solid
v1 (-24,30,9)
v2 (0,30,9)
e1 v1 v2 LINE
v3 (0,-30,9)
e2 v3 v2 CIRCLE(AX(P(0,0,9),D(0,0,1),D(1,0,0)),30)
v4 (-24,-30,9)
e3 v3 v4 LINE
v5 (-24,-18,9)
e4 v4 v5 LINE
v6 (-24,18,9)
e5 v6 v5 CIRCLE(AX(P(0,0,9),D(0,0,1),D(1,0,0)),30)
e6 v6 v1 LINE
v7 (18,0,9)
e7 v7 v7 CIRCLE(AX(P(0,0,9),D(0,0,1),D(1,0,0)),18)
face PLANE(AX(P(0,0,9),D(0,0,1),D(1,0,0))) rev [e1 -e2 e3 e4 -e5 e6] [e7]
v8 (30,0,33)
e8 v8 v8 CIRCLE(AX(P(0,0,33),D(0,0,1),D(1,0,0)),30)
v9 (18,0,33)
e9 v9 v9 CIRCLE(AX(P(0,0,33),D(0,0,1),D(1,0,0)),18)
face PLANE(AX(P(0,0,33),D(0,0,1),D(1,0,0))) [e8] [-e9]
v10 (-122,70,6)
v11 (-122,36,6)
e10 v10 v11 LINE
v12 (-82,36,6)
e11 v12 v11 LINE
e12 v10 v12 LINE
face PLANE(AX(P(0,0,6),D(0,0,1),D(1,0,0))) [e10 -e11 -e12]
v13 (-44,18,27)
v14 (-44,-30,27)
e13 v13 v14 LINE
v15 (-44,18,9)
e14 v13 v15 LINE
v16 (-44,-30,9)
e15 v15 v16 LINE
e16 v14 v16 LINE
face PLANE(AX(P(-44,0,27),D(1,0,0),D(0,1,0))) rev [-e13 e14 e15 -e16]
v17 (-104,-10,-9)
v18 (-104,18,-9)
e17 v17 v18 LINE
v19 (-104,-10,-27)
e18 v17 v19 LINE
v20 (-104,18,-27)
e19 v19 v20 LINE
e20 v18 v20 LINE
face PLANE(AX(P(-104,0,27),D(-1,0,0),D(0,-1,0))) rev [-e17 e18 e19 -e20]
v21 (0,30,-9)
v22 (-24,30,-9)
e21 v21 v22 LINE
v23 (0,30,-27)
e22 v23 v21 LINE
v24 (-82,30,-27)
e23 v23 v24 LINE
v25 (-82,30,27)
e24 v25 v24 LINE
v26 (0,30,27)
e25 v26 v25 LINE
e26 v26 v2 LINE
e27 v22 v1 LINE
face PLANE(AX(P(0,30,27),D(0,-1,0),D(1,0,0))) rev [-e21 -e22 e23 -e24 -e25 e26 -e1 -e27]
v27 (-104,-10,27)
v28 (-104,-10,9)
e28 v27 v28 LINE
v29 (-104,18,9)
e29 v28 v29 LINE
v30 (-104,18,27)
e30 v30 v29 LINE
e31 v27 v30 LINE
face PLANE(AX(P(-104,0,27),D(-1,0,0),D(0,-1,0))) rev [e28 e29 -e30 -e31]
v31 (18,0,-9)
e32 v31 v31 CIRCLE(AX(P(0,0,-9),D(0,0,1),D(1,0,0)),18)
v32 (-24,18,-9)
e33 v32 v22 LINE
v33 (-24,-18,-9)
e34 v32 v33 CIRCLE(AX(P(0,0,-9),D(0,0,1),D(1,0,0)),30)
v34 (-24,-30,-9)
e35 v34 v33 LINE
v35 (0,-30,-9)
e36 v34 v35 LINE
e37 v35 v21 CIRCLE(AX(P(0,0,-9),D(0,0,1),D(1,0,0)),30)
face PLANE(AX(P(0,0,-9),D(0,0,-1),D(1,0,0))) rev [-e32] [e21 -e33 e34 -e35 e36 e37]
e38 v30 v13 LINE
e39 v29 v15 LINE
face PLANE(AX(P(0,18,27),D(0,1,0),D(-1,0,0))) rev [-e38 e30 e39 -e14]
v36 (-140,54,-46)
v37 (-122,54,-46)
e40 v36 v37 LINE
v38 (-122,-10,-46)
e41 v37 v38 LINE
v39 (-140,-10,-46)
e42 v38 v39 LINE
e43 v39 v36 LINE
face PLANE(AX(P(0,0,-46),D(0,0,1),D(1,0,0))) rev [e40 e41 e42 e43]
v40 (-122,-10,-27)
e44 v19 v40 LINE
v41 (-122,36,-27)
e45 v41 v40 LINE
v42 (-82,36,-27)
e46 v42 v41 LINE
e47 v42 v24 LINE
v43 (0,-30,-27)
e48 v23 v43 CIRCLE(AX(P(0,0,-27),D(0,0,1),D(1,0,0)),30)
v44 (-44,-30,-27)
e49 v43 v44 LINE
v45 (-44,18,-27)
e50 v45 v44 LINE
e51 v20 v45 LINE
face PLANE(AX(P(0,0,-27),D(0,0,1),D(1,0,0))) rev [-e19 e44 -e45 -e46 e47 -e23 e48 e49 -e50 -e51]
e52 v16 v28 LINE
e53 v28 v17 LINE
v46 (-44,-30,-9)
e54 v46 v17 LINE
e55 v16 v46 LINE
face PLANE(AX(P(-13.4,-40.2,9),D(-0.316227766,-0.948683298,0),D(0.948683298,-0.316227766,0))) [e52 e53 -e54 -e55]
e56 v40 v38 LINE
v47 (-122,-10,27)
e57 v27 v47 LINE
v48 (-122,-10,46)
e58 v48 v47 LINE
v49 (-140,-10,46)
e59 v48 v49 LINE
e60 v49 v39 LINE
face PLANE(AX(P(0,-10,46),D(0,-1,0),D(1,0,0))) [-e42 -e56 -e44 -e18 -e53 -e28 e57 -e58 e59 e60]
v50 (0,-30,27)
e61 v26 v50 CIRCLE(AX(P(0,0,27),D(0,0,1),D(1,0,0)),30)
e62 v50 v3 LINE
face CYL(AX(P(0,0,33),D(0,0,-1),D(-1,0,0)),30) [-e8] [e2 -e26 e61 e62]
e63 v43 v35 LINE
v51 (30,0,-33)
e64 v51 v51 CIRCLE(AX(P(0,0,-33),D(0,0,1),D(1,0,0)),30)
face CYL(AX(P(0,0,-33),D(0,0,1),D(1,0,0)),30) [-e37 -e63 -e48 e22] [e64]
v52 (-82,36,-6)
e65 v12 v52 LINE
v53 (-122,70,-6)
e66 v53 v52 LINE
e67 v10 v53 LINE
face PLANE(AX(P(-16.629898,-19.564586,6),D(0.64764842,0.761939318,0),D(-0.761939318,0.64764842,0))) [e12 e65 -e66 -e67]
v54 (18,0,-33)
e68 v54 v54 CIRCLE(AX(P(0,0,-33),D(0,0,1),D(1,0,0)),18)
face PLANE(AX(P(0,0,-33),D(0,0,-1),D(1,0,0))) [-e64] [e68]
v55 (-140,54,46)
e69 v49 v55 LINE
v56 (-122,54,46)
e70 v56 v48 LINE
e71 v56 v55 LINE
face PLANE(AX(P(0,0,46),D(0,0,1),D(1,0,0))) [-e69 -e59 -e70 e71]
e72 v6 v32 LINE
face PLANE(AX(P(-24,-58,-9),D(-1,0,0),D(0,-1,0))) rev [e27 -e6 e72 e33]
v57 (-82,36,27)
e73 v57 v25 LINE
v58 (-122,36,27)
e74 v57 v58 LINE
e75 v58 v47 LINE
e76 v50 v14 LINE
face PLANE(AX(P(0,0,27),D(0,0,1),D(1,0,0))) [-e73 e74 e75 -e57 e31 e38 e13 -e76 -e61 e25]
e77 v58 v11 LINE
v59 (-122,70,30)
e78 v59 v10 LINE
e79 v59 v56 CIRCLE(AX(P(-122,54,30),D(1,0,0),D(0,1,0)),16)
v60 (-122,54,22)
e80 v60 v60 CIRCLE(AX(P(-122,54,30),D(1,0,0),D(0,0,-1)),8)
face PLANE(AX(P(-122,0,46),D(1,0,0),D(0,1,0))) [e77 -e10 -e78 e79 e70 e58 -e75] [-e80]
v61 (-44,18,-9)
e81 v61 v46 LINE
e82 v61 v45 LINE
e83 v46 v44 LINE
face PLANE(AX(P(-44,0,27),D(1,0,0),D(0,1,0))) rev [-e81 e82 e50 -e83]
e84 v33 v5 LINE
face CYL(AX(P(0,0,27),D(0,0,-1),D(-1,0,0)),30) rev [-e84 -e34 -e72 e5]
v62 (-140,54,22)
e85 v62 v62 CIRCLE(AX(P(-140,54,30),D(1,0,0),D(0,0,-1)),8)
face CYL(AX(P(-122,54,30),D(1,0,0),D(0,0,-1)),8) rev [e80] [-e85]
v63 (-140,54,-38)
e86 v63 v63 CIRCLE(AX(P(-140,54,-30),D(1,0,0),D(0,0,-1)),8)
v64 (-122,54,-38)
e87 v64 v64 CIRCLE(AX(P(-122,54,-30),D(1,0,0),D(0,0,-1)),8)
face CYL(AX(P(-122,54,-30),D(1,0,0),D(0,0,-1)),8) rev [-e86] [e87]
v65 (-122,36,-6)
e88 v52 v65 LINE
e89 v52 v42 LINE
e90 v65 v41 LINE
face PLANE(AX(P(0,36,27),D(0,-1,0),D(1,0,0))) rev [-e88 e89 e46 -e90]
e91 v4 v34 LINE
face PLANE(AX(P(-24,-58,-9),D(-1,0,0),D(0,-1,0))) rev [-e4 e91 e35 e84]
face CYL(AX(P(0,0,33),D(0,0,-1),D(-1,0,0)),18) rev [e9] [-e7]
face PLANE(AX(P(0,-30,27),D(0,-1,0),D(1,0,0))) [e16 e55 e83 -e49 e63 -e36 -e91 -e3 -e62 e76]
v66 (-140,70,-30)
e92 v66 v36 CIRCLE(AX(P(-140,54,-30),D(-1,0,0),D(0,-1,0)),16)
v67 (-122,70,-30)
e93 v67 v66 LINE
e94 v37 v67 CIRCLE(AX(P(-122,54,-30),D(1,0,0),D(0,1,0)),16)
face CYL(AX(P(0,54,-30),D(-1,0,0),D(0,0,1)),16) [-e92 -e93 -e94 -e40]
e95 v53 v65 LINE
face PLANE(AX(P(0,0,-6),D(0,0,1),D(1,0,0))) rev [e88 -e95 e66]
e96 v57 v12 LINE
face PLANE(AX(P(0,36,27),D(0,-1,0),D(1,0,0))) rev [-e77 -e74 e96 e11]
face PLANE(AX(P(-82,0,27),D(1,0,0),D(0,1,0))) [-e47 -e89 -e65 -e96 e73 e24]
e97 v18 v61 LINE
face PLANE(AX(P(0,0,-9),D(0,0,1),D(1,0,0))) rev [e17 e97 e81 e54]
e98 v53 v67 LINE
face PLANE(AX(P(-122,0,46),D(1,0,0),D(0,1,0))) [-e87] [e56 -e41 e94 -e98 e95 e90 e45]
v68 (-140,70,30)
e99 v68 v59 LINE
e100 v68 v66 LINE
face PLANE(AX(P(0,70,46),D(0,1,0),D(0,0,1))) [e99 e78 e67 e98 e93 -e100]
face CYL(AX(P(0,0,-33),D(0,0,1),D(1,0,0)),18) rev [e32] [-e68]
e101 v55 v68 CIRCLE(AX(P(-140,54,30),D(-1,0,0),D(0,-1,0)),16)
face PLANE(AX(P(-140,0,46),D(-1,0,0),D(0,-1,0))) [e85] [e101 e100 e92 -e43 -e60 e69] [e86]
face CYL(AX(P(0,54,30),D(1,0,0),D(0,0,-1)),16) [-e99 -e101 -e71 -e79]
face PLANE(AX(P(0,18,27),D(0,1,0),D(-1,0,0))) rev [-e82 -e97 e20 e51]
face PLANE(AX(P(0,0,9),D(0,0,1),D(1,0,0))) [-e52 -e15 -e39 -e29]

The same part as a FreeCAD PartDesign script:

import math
import FreeCAD as App
import Part
import Sketcher
Q = App.Units.Quantity


def edges_at(feature, points):
    """Names of the edges that pass closest to the given points."""
    edges = feature.Shape.Edges
    near = lambda p: min(range(len(edges)), key=lambda i: edges[i].distToShape(Part.Vertex(*p))[0])
    return sorted({f"Edge{near(p) + 1}" for p in points})

doc = App.newDocument("Part")
body = doc.addObject("PartDesign::Body", "Body")

# Sketch on XY plane
sketch1 = body.newObject("Sketcher::SketchObject", "Sketch")
sketch1.AttachmentSupport = (doc.getObject("XY_Plane"), [""])
sketch1.MapMode = "FlatFace"
sketch1.addGeometry([
    Part.LineSegment(App.Vector(-140, 70, 0), App.Vector(-140, -10, 0)),
    Part.LineSegment(App.Vector(-140, -10, 0), App.Vector(-122, -10, 0)),
    Part.LineSegment(App.Vector(-122, -10, 0), App.Vector(-122, 70, 0)),
    Part.LineSegment(App.Vector(-122, 70, 0), App.Vector(-140, 70, 0)),
], False)
sketch1.addConstraint([
    Sketcher.Constraint("Coincident", 0, 2, 1, 1),
    Sketcher.Constraint("Coincident", 1, 2, 2, 1),
    Sketcher.Constraint("Coincident", 2, 2, 3, 1),
    Sketcher.Constraint("Coincident", 3, 2, 0, 1),
    Sketcher.Constraint("Vertical", 0),
    Sketcher.Constraint("Horizontal", 1),
    Sketcher.Constraint("Vertical", 2),
    Sketcher.Constraint("Horizontal", 3),
    Sketcher.Constraint("DistanceX", 1, 1, 1, 2, Q("18 mm")),
    Sketcher.Constraint("DistanceY", 0, 2, 0, 1, Q("80 mm")),
    Sketcher.Constraint("DistanceX", 0, 2, -1, 1, Q("140 mm")),
    Sketcher.Constraint("DistanceY", 0, 2, -1, 1, Q("10 mm")),
])
pad1 = body.newObject("PartDesign::Pad", "Pad")
pad1.Profile = sketch1
pad1.Length = 92
pad1.Midplane = True

# Sketch on XY plane
sketch2 = body.newObject("Sketcher::SketchObject", "Sketch001")
sketch2.AttachmentSupport = (doc.getObject("XY_Plane"), [""])
sketch2.MapMode = "FlatFace"
sketch2.addGeometry([
    Part.ArcOfCircle(Part.Circle(App.Vector(0, 0, 0), App.Vector(0, 0, 1), 30), math.radians(90), math.radians(270)),  # 0
    Part.LineSegment(App.Vector(0, 30, 0), App.Vector(-82, 30, 0)),  # 1
    Part.LineSegment(App.Vector(-82, 30, 0), App.Vector(-82, 36, 0)),  # 2
    Part.LineSegment(App.Vector(-82, 36, 0), App.Vector(-122, 36, 0)),  # 3
    Part.LineSegment(App.Vector(-122, 36, 0), App.Vector(-122, -10, 0)),  # 4
    Part.LineSegment(App.Vector(-122, -10, 0), App.Vector(-104, -10, 0)),  # 5
    Part.LineSegment(App.Vector(-104, -10, 0), App.Vector(-104, 18, 0)),  # 6
    Part.LineSegment(App.Vector(-104, 18, 0), App.Vector(-44, 18, 0)),  # 7
    Part.LineSegment(App.Vector(-44, 18, 0), App.Vector(-44, -30, 0)),  # 8
    Part.LineSegment(App.Vector(-44, -30, 0), App.Vector(0, -30, 0)),  # 9
], False)
sketch2.addConstraint([
    Sketcher.Constraint("Tangent", 0, 1, 1, 1),
    Sketcher.Constraint("Coincident", 1, 2, 2, 1),
    Sketcher.Constraint("Coincident", 2, 2, 3, 1),
    Sketcher.Constraint("Coincident", 3, 2, 4, 1),
    Sketcher.Constraint("Coincident", 4, 2, 5, 1),
    Sketcher.Constraint("Coincident", 5, 2, 6, 1),
    Sketcher.Constraint("Coincident", 6, 2, 7, 1),
    Sketcher.Constraint("Coincident", 7, 2, 8, 1),
    Sketcher.Constraint("Coincident", 8, 2, 9, 1),
    Sketcher.Constraint("Tangent", 9, 2, 0, 2),
    Sketcher.Constraint("Horizontal", 1),
    Sketcher.Constraint("Vertical", 2),
    Sketcher.Constraint("Horizontal", 3),
    Sketcher.Constraint("Vertical", 4),
    Sketcher.Constraint("Horizontal", 5),
    Sketcher.Constraint("Vertical", 6),
    Sketcher.Constraint("Horizontal", 7),
    Sketcher.Constraint("Vertical", 8),
    Sketcher.Constraint("Horizontal", 9),
    Sketcher.Constraint("Coincident", 0, 3, -1, 1),
    Sketcher.Constraint("Radius", 0, Q("30 mm")),
    Sketcher.Constraint("DistanceX", 1, 2, 1, 1, Q("82 mm")),
    Sketcher.Constraint("DistanceX", 3, 2, 3, 1, Q("40 mm")),
    Sketcher.Constraint("DistanceX", 5, 1, 5, 2, Q("18 mm")),
    Sketcher.Constraint("DistanceX", 7, 1, 7, 2, Q("60 mm")),
    Sketcher.Constraint("DistanceY", 2, 1, 2, 2, Q("6 mm")),
    Sketcher.Constraint("DistanceY", 4, 2, 4, 1, Q("46 mm")),
    Sketcher.Constraint("DistanceY", 6, 1, 6, 2, Q("28 mm")),
])
pad2 = body.newObject("PartDesign::Pad", "Pad001")
pad2.Profile = sketch2
pad2.Length = 54
pad2.Midplane = True

# Sketch on XY plane
sketch3 = body.newObject("Sketcher::SketchObject", "Sketch002")
sketch3.AttachmentSupport = (doc.getObject("XY_Plane"), [""])
sketch3.MapMode = "FlatFace"
sketch3.AttachmentOffset = App.Placement(App.Vector(0, 0, 33), App.Rotation())
sketch3.addGeometry([
    Part.Circle(App.Vector(0, 0, 0), App.Vector(0, 0, 1), 30),
    Part.Circle(App.Vector(0, 0, 0), App.Vector(0, 0, 1), 18),
], False)
sketch3.addConstraint([
    Sketcher.Constraint("Coincident", 0, 3, -1, 1),
    Sketcher.Constraint("Coincident", 1, 3, -1, 1),
    Sketcher.Constraint("Diameter", 0, Q("60 mm")),
    Sketcher.Constraint("Diameter", 1, Q("36 mm")),
])
pad3 = body.newObject("PartDesign::Pad", "Pad002")
pad3.Profile = sketch3
pad3.Length = 24
pad3.Reversed = True
doc.recompute()

mirrored = body.newObject("PartDesign::Mirrored", "Mirrored")
mirrored.Originals = [pad3]
mirrored.MirrorPlane = (doc.getObject("XY_Plane"), [""])
body.Tip = mirrored
doc.recompute()

fillet = body.newObject("PartDesign::Fillet", "Fillet")
fillet.Base = (mirrored, edges_at(mirrored, [(-131, 70, 46), (-131, 70, -46)]))
fillet.Radius = 16

# Sketch on XY plane
sketch4 = body.newObject("Sketcher::SketchObject", "Sketch003")
sketch4.AttachmentSupport = (doc.getObject("XY_Plane"), [""])
sketch4.MapMode = "FlatFace"
sketch4.addGeometry([
    Part.LineSegment(App.Vector(-122, 36, 0), App.Vector(-82, 36, 0)),
    Part.LineSegment(App.Vector(-82, 36, 0), App.Vector(-122, 70, 0)),
    Part.LineSegment(App.Vector(-122, 70, 0), App.Vector(-122, 36, 0)),
], False)
sketch4.addConstraint([
    Sketcher.Constraint("Coincident", 0, 2, 1, 1),
    Sketcher.Constraint("Coincident", 1, 2, 2, 1),
    Sketcher.Constraint("Coincident", 2, 2, 0, 1),
    Sketcher.Constraint("Horizontal", 0),
    Sketcher.Constraint("Vertical", 2),
    Sketcher.Constraint("DistanceX", 0, 1, 0, 2, Q("40 mm")),
    Sketcher.Constraint("DistanceY", 2, 2, 2, 1, Q("34 mm")),
    Sketcher.Constraint("DistanceX", 0, 2, -1, 1, Q("82 mm")),
    Sketcher.Constraint("DistanceY", -1, 1, 0, 2, Q("36 mm")),
])
pad4 = body.newObject("PartDesign::Pad", "Pad003")
pad4.Profile = sketch4
pad4.Length = 12
pad4.Midplane = True

# Sketch on XY plane
sketch5 = body.newObject("Sketcher::SketchObject", "Sketch004")
sketch5.AttachmentSupport = (doc.getObject("XY_Plane"), [""])
sketch5.MapMode = "FlatFace"
sketch5.addGeometry([
    Part.LineSegment(App.Vector(-44, -30, 0), App.Vector(-44, 18, 0)),
    Part.LineSegment(App.Vector(-44, 18, 0), App.Vector(-104, 18, 0)),
    Part.LineSegment(App.Vector(-104, 18, 0), App.Vector(-104, -10, 0)),
    Part.LineSegment(App.Vector(-104, -10, 0), App.Vector(-44, -30, 0)),
], False)
sketch5.addConstraint([
    Sketcher.Constraint("Coincident", 0, 2, 1, 1),
    Sketcher.Constraint("Coincident", 1, 2, 2, 1),
    Sketcher.Constraint("Coincident", 2, 2, 3, 1),
    Sketcher.Constraint("Coincident", 3, 2, 0, 1),
    Sketcher.Constraint("Vertical", 0),
    Sketcher.Constraint("Horizontal", 1),
    Sketcher.Constraint("Vertical", 2),
    Sketcher.Constraint("DistanceX", 1, 2, 1, 1, Q("60 mm")),
    Sketcher.Constraint("DistanceY", 0, 1, 0, 2, Q("48 mm")),
    Sketcher.Constraint("DistanceY", 2, 2, 2, 1, Q("28 mm")),
    Sketcher.Constraint("DistanceX", 0, 2, -1, 1, Q("44 mm")),
    Sketcher.Constraint("DistanceY", -1, 1, 0, 2, Q("18 mm")),
])
pad5 = body.newObject("PartDesign::Pad", "Pad004")
pad5.Profile = sketch5
pad5.Length = 18
pad5.Midplane = True

# Sketch on YZ plane
sketch6 = body.newObject("Sketcher::SketchObject", "Sketch005")
sketch6.AttachmentSupport = (doc.getObject("YZ_Plane"), [""])
sketch6.MapMode = "FlatFace"
sketch6.AttachmentOffset = App.Placement(App.Vector(0, 0, -122), App.Rotation())
sketch6.addGeometry([
    Part.Circle(App.Vector(54, 30, 0), App.Vector(0, 0, 1), 8),
    Part.Circle(App.Vector(54, -30, 0), App.Vector(0, 0, 1), 8),
], False)
sketch6.addConstraint([
    Sketcher.Constraint("Equal", 0, 1),
    Sketcher.Constraint("Symmetric", 0, 3, 1, 3, -1),
    Sketcher.Constraint("Diameter", 0, Q("16 mm")),
    Sketcher.Constraint("DistanceX", -1, 1, 0, 3, Q("54 mm")),
    Sketcher.Constraint("DistanceY", -1, 1, 0, 3, Q("30 mm")),
])
doc.recompute()
hole = body.newObject("PartDesign::Hole", "Hole")
hole.Profile = sketch6
hole.ThreadType = "None"
hole.Diameter = 16
hole.DepthType = "ThroughAll"

# Sketch on XZ plane
sketch7 = body.newObject("Sketcher::SketchObject", "Sketch006")
sketch7.AttachmentSupport = (doc.getObject("XZ_Plane"), [""])
sketch7.MapMode = "FlatFace"
sketch7.AttachmentOffset = App.Placement(App.Vector(0, 0, -30), App.Rotation())
sketch7.addGeometry([
    Part.LineSegment(App.Vector(-24, -9, 0), App.Vector(-24, 9, 0)),
    Part.LineSegment(App.Vector(-24, 9, 0), App.Vector(24, 9, 0)),
    Part.LineSegment(App.Vector(24, 9, 0), App.Vector(24, -9, 0)),
    Part.LineSegment(App.Vector(24, -9, 0), App.Vector(-24, -9, 0)),
], False)
sketch7.addConstraint([
    Sketcher.Constraint("Coincident", 0, 2, 1, 1),
    Sketcher.Constraint("Coincident", 1, 2, 2, 1),
    Sketcher.Constraint("Coincident", 2, 2, 3, 1),
    Sketcher.Constraint("Coincident", 3, 2, 0, 1),
    Sketcher.Constraint("Vertical", 0),
    Sketcher.Constraint("Horizontal", 1),
    Sketcher.Constraint("Vertical", 2),
    Sketcher.Constraint("Horizontal", 3),
    Sketcher.Constraint("Symmetric", 0, 2, 2, 2, -1, 1),
    Sketcher.Constraint("DistanceX", 1, 1, 1, 2, Q("48 mm")),
    Sketcher.Constraint("DistanceY", 0, 1, 0, 2, Q("18 mm")),
])
pocket1 = body.newObject("PartDesign::Pocket", "Pocket")
pocket1.Profile = sketch7
pocket1.Length = 88
pocket1.Reversed = True

doc.recompute()
